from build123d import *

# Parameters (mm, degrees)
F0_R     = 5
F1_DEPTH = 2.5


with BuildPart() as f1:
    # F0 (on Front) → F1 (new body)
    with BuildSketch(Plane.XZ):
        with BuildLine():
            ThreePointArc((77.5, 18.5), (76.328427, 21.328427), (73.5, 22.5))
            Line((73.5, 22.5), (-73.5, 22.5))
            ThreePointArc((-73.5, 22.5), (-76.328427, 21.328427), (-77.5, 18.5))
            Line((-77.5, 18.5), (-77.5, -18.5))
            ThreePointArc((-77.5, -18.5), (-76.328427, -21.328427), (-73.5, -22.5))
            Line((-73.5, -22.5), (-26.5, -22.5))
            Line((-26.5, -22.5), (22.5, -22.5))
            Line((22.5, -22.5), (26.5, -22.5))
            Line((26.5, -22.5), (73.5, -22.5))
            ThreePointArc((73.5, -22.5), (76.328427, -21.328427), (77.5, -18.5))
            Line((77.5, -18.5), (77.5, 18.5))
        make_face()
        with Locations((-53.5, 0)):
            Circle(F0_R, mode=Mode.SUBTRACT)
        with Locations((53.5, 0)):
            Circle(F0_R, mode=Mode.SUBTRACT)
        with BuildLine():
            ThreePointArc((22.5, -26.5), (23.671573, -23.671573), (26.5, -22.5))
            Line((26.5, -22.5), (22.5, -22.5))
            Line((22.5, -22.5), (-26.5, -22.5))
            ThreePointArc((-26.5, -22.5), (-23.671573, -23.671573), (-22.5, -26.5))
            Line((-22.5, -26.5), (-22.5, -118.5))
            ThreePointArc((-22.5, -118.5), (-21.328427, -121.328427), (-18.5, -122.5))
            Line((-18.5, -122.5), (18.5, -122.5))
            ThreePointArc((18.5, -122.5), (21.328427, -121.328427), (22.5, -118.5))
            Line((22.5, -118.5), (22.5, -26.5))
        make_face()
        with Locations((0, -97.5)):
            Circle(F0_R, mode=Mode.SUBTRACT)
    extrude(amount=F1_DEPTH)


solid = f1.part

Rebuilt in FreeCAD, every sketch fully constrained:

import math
import FreeCAD as App
import Part
import Sketcher

doc = App.newDocument("Part")
body = doc.addObject("PartDesign::Body", "Body")

# Sketch on XZ plane
sketch1 = body.newObject("Sketcher::SketchObject", "Sketch")
sketch1.AttachmentSupport = (doc.getObject("XZ_Plane"), [""])
sketch1.MapMode = "FlatFace"
sketch1.addGeometry([
    Part.ArcOfCircle(Part.Circle(App.Vector(73.5, 18.5, 0), App.Vector(0, 0, 1), 4), math.radians(0), math.radians(90)),  # 0
    Part.LineSegment(App.Vector(73.5, 22.5, 0), App.Vector(-73.5, 22.5, 0)),  # 1
    Part.ArcOfCircle(Part.Circle(App.Vector(-73.5, 18.5, 0), App.Vector(0, 0, 1), 4), math.radians(90), math.radians(180)),  # 2
    Part.LineSegment(App.Vector(-77.5, 18.5, 0), App.Vector(-77.5, -18.5, 0)),  # 3
    Part.ArcOfCircle(Part.Circle(App.Vector(-73.5, -18.5, 0), App.Vector(0, 0, 1), 4), math.radians(-180), math.radians(-90)),  # 4
    Part.LineSegment(App.Vector(-73.5, -22.5, 0), App.Vector(-26.5, -22.5, 0)),  # 5
    Part.ArcOfCircle(Part.Circle(App.Vector(-26.5, -26.5, 0), App.Vector(0, 0, 1), 4), math.radians(0), math.radians(90)),  # 6
    Part.LineSegment(App.Vector(-22.5, -26.5, 0), App.Vector(-22.5, -118.5, 0)),  # 7
    Part.ArcOfCircle(Part.Circle(App.Vector(-18.5, -118.5, 0), App.Vector(0, 0, 1), 4), math.radians(-180), math.radians(-90)),  # 8
    Part.LineSegment(App.Vector(-18.5, -122.5, 0), App.Vector(18.5, -122.5, 0)),  # 9
    Part.ArcOfCircle(Part.Circle(App.Vector(18.5, -118.5, 0), App.Vector(0, 0, 1), 4), math.radians(-90), math.radians(0)),  # 10
    Part.LineSegment(App.Vector(22.5, -118.5, 0), App.Vector(22.5, -26.5, 0)),  # 11
    Part.ArcOfCircle(Part.Circle(App.Vector(26.5, -26.5, 0), App.Vector(0, 0, 1), 4), math.radians(90), math.radians(180)),  # 12
    Part.LineSegment(App.Vector(26.5, -22.5, 0), App.Vector(73.5, -22.5, 0)),  # 13
    Part.ArcOfCircle(Part.Circle(App.Vector(73.5, -18.5, 0), App.Vector(0, 0, 1), 4), math.radians(-90), math.radians(0)),  # 14
    Part.LineSegment(App.Vector(77.5, -18.5, 0), App.Vector(77.5, 18.5, 0)),  # 15
    Part.Circle(App.Vector(0, -97.5, 0), App.Vector(0, 0, 1), 5),  # 16
    Part.Circle(App.Vector(-53.5, 0, 0), App.Vector(0, 0, 1), 5),  # 17
    Part.Circle(App.Vector(53.5, 0, 0), App.Vector(0, 0, 1), 5),  # 18
], False)
sketch1.addConstraint([
    Sketcher.Constraint("Tangent", 0, 2, 1, 1),
    Sketcher.Constraint("Tangent", 1, 2, 2, 1),
    Sketcher.Constraint("Tangent", 2, 2, 3, 1),
    Sketcher.Constraint("Tangent", 3, 2, 4, 1),
    Sketcher.Constraint("Tangent", 4, 2, 5, 1),
    Sketcher.Constraint("Tangent", 5, 2, 6, 2),
    Sketcher.Constraint("Tangent", 6, 1, 7, 1),
    Sketcher.Constraint("Tangent", 7, 2, 8, 1),
    Sketcher.Constraint("Tangent", 8, 2, 9, 1),
    Sketcher.Constraint("Tangent", 9, 2, 10, 1),
    Sketcher.Constraint("Tangent", 10, 2, 11, 1),
    Sketcher.Constraint("Tangent", 11, 2, 12, 2),
    Sketcher.Constraint("Tangent", 12, 1, 13, 1),
    Sketcher.Constraint("Tangent", 13, 2, 14, 1),
    Sketcher.Constraint("Tangent", 14, 2, 15, 1),
    Sketcher.Constraint("Tangent", 15, 2, 0, 1),
    Sketcher.Constraint("Horizontal", 1),
    Sketcher.Constraint("Vertical", 3),
    Sketcher.Constraint("Horizontal", 5),
    Sketcher.Constraint("Vertical", 7),
    Sketcher.Constraint("Horizontal", 9),
    Sketcher.Constraint("Vertical", 11),
    Sketcher.Constraint("Horizontal", 13),
    Sketcher.Constraint("Vertical", 15),
    Sketcher.Constraint("Equal", 0, 2),
    Sketcher.Constraint("Equal", 2, 4),
    Sketcher.Constraint("Equal", 4, 6),
    Sketcher.Constraint("Equal", 6, 8),
    Sketcher.Constraint("Equal", 8, 10),
    Sketcher.Constraint("Equal", 10, 12),
    Sketcher.Constraint("Equal", 12, 14),
    Sketcher.Constraint("Equal", 16, 17),
    Sketcher.Constraint("Equal", 17, 18),
    Sketcher.Constraint("Symmetric", 0, 3, 4, 3, -1, 1),
    Sketcher.Constraint("Symmetric", 17, 3, 18, 3, -1, 1),
    Sketcher.Constraint("Symmetric", 6, 3, 12, 3, -2),
    Sketcher.Constraint("PointOnObject", 16, 3, -2),
    Sketcher.Constraint("PointOnObject", 17, 3, -1),
    Sketcher.Constraint("Equal", 9, 3),
    Sketcher.Constraint("Diameter", 16, 10.0),
    Sketcher.Constraint("Radius", 0, 4.0),
    Sketcher.Constraint("DistanceX", 1, 2, 1, 1, 147.0),
    Sketcher.Constraint("DistanceX", 5, 1, 5, 2, 47.0),
    Sketcher.Constraint("DistanceY", 7, 2, 7, 1, 92.0),
    Sketcher.Constraint("DistanceY", 8, 3, 16, 3, 21.0),
    Sketcher.Constraint("DistanceX", 2, 3, 17, 3, 20.0),
])
pad1 = body.newObject("PartDesign::Pad", "Pad")
pad1.Profile = sketch1
pad1.Length = 2.5

doc.recompute()
